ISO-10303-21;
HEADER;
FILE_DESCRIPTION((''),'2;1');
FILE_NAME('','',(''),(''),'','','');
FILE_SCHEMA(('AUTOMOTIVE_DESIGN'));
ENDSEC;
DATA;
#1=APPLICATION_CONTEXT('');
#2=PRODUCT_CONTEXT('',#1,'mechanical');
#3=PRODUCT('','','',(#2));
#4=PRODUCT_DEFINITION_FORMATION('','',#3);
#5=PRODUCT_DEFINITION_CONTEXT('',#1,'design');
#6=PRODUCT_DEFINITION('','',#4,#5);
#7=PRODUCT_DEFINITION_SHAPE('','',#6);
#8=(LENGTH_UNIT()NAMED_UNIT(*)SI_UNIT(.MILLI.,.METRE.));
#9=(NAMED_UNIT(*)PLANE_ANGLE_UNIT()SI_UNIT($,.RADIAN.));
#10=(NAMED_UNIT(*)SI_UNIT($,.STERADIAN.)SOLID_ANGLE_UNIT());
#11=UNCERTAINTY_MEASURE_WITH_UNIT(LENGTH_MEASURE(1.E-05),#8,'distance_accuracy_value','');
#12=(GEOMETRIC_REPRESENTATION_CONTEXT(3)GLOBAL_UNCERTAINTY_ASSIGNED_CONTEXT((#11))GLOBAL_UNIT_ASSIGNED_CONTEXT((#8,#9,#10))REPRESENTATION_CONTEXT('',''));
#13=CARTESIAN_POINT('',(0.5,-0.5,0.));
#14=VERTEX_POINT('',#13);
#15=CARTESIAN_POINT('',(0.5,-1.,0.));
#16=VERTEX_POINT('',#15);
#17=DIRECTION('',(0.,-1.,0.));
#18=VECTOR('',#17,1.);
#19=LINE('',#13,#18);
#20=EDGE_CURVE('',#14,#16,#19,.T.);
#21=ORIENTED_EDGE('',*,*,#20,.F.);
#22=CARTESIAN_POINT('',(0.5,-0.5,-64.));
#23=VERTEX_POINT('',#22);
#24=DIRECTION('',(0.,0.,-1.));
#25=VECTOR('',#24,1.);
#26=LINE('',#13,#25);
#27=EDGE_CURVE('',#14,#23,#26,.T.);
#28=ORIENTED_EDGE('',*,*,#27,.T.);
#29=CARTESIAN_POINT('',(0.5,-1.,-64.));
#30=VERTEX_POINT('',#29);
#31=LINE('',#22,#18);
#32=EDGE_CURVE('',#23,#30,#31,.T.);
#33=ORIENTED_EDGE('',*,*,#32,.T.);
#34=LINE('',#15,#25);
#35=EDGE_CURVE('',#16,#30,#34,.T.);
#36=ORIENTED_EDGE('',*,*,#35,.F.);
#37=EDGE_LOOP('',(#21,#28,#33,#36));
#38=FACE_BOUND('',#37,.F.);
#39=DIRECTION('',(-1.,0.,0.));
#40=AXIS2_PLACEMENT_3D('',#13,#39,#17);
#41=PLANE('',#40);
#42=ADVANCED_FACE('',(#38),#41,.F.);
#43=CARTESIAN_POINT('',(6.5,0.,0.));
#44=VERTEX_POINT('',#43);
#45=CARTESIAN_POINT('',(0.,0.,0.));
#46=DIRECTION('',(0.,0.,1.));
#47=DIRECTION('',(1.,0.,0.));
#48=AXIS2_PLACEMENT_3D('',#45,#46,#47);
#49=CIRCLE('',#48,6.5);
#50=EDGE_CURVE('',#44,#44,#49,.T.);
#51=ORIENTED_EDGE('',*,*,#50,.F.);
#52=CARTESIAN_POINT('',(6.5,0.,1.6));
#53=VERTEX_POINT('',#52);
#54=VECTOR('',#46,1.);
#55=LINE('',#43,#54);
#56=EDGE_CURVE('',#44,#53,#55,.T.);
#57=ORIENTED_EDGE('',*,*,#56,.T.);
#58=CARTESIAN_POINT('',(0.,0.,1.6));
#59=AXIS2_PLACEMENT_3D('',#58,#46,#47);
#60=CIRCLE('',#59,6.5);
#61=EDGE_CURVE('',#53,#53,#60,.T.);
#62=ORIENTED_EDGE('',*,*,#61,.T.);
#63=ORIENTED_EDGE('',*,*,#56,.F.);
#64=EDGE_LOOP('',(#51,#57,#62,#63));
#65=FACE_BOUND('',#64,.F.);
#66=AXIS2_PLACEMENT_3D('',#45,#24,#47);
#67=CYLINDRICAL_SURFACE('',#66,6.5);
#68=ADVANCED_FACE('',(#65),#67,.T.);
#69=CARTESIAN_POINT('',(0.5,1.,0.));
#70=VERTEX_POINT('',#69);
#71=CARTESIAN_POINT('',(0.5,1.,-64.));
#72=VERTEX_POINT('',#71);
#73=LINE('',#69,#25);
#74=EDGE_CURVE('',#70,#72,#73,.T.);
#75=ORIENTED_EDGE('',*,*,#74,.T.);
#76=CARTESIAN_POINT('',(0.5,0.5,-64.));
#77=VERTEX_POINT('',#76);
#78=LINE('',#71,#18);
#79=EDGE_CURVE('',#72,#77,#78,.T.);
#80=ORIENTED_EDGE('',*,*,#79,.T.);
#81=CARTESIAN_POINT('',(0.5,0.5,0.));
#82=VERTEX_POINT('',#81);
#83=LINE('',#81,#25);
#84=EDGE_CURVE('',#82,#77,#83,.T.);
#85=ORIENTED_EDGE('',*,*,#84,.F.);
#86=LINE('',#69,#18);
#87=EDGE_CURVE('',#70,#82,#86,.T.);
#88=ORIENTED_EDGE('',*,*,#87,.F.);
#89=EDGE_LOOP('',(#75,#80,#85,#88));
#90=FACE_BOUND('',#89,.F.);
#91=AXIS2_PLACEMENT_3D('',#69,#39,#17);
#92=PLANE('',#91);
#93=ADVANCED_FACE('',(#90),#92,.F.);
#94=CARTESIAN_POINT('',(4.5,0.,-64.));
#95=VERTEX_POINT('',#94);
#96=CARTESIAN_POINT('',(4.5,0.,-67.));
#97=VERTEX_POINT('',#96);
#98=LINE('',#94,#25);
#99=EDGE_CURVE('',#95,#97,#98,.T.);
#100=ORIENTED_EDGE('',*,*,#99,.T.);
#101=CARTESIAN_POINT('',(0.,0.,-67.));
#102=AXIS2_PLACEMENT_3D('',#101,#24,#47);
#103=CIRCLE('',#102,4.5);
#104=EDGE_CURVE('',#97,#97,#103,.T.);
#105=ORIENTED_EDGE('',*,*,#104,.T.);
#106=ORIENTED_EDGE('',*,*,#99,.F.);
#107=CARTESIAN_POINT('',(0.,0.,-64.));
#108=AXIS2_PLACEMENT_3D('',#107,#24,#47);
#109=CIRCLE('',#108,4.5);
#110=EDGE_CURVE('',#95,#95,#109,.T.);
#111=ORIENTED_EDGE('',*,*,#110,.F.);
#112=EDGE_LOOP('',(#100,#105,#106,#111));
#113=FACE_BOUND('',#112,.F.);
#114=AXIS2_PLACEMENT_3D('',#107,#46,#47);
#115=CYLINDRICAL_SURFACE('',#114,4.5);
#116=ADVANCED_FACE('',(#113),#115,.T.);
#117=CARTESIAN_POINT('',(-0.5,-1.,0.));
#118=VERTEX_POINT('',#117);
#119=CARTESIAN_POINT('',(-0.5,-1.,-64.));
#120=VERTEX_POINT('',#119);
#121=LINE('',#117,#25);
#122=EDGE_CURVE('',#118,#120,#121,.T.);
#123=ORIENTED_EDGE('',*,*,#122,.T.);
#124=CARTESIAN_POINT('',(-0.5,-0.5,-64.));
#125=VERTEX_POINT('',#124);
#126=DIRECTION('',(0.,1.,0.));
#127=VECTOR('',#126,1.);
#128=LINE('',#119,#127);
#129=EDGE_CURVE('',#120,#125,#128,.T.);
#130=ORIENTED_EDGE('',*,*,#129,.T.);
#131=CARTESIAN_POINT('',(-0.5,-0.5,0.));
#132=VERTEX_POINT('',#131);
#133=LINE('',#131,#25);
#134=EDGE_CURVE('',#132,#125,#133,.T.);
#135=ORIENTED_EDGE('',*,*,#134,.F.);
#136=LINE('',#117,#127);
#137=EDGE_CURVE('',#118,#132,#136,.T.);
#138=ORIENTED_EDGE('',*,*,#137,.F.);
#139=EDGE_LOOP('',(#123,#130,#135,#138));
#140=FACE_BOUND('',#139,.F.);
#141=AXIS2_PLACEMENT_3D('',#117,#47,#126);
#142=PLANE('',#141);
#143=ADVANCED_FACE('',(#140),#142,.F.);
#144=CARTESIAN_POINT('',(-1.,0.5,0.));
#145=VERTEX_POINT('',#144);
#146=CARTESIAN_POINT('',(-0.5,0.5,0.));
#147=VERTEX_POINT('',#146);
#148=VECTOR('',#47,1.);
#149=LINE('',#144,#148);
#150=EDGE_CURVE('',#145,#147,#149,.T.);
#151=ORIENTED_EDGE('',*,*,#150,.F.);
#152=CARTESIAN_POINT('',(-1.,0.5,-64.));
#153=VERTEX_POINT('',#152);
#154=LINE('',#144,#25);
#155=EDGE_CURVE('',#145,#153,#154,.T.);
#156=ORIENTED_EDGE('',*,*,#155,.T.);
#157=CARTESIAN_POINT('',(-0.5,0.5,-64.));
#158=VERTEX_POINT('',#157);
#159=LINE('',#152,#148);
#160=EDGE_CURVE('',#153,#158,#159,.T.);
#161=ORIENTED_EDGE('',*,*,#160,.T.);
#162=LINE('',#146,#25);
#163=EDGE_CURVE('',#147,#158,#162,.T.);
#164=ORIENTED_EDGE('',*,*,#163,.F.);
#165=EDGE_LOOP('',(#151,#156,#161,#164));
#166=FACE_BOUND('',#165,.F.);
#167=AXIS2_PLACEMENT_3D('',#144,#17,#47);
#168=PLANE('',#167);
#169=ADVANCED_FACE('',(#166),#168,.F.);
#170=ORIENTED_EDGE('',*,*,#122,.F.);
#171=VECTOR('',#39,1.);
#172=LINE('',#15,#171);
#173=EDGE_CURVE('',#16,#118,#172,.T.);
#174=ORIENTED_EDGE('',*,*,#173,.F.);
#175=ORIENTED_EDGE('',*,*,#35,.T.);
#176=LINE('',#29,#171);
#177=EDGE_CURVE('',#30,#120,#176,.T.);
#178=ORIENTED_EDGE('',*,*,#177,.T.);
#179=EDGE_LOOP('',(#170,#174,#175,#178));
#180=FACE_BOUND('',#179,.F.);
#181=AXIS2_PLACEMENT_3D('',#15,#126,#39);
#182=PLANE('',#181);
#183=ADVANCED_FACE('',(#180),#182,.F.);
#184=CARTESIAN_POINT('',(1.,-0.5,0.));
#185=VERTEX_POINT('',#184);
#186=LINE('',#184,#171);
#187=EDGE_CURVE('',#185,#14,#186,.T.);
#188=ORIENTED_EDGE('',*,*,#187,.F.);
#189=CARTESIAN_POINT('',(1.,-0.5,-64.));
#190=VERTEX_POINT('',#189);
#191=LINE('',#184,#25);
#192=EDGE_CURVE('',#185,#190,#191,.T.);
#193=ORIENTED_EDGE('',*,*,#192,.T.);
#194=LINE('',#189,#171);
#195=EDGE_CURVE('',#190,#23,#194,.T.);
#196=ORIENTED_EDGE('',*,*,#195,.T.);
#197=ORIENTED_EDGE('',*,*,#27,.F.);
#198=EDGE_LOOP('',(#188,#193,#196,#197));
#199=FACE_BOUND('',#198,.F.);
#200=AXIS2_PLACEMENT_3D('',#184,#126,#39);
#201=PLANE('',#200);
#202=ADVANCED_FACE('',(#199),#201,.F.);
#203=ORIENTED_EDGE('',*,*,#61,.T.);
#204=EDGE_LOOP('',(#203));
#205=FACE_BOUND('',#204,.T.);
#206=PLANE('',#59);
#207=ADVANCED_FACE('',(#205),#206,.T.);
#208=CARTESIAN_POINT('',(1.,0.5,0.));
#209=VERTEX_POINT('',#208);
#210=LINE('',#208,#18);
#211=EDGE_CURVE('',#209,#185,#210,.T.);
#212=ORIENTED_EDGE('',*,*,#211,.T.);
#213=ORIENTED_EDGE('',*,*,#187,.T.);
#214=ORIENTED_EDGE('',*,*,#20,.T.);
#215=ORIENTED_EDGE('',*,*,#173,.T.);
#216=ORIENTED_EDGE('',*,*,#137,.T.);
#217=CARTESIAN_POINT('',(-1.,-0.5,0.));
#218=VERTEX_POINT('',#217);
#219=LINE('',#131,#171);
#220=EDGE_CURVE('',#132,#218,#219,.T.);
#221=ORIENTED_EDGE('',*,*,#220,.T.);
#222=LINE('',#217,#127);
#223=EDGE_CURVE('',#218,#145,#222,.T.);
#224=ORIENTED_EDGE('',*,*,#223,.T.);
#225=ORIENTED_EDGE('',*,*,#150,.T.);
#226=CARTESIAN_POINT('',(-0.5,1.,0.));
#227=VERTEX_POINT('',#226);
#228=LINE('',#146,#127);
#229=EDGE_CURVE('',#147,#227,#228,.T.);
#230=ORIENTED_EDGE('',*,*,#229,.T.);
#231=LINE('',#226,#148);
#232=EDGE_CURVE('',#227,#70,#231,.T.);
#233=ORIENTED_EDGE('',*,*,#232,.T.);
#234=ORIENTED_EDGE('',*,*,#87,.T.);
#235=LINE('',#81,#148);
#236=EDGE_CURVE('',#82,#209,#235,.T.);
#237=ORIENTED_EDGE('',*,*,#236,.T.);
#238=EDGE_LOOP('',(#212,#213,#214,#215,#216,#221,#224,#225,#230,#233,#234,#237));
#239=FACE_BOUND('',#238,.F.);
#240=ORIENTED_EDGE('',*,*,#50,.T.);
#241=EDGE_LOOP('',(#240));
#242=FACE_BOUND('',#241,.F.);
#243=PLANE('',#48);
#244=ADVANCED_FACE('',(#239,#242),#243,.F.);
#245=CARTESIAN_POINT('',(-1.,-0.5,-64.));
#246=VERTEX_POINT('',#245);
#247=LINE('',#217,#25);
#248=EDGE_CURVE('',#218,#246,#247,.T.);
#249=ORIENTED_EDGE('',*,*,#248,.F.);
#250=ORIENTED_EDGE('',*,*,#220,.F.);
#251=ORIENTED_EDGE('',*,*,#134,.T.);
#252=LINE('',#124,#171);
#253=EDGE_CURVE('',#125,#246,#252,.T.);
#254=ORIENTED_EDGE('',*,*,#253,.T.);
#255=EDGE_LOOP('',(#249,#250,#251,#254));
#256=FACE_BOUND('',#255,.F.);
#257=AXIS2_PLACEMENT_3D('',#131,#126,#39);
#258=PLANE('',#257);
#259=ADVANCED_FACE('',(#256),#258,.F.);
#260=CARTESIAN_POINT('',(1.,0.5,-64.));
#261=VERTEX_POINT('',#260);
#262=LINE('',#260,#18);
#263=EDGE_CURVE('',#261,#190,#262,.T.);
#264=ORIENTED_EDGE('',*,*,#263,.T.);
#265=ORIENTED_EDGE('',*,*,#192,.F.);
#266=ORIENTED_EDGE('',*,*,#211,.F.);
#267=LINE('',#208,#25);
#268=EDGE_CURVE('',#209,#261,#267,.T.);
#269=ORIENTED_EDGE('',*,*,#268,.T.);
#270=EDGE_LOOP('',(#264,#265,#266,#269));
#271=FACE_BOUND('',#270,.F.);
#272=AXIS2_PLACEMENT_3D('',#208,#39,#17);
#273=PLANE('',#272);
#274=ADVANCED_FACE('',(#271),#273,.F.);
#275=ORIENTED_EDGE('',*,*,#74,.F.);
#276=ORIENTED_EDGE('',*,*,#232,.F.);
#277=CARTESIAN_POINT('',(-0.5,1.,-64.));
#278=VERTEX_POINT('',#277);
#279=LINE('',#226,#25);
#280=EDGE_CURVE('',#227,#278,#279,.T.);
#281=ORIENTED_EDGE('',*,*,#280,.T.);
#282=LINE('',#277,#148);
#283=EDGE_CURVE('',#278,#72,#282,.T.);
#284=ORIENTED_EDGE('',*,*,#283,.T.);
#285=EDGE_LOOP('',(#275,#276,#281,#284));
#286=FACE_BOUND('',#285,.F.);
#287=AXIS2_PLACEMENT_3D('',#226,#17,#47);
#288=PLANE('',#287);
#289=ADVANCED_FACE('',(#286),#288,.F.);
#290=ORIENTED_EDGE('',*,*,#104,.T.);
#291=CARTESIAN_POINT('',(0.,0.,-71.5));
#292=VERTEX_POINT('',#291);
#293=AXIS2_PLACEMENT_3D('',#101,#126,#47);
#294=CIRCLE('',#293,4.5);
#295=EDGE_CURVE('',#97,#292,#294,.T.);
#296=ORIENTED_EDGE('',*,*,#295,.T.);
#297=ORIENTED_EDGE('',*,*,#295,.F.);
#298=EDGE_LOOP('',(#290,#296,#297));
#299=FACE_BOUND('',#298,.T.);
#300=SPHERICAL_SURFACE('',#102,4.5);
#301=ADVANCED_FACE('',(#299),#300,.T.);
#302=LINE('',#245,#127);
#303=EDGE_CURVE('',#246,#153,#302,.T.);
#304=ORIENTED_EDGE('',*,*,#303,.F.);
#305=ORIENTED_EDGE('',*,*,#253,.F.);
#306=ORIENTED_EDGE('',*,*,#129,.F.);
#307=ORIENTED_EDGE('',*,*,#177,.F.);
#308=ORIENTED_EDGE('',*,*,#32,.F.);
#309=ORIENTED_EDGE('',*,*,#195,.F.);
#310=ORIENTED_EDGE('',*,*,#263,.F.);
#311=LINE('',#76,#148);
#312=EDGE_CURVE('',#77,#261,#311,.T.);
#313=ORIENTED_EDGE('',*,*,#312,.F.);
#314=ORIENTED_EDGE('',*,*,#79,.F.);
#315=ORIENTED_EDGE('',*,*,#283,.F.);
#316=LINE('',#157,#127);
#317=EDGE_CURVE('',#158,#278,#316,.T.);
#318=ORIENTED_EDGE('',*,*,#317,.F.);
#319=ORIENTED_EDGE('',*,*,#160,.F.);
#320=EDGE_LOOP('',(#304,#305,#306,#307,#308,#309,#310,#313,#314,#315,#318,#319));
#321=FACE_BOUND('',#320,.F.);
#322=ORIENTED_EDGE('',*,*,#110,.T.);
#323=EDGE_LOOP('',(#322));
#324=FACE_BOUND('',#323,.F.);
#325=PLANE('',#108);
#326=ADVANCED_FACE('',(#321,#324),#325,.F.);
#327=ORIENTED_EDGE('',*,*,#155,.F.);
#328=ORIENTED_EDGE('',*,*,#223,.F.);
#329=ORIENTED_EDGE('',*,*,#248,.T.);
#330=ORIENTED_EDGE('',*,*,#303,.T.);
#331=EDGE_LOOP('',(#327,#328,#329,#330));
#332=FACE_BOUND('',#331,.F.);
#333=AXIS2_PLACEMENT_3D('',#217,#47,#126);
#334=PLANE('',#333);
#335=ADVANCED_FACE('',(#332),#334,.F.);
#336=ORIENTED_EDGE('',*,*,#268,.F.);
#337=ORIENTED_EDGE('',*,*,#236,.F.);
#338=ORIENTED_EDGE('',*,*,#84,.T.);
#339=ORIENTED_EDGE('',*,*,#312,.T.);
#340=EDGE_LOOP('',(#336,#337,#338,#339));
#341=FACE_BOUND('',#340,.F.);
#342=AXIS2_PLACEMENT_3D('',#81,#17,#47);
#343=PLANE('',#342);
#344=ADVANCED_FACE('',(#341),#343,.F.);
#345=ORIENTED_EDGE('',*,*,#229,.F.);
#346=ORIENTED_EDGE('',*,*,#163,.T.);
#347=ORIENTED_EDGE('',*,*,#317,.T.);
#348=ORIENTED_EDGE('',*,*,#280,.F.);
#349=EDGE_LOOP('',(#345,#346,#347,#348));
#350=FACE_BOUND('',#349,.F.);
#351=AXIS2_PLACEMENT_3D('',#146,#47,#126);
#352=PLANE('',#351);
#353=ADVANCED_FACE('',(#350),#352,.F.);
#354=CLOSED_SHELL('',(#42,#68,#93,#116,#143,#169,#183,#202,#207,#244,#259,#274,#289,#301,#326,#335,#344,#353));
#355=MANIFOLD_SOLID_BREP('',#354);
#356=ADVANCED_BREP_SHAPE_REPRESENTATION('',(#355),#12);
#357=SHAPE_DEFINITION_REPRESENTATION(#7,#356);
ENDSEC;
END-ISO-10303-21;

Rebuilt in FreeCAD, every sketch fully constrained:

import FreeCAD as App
import Part
import Sketcher
Q = App.Units.Quantity


def edges_at(feature, points):
    """Names of the edges that pass closest to the given points."""
    edges = feature.Shape.Edges
    near = lambda p: min(range(len(edges)), key=lambda i: edges[i].distToShape(Part.Vertex(*p))[0])
    return sorted({f"Edge{near(p) + 1}" for p in points})


def add_polygon(sketch, points):
    """Adds a closed chain of lines whose ends are joined by coincident constraints."""
    first, n = sketch.GeometryCount, len(points)
    for a, b in zip(points, points[1:] + points[:1]):
        sketch.addGeometry(Part.LineSegment(App.Vector(*a, 0), App.Vector(*b, 0)), False)
    for i in range(n):
        sketch.addConstraint(Sketcher.Constraint("Coincident", first + i, 2, first + (i + 1) % n, 1))

doc = App.newDocument("Part")
body = doc.addObject("PartDesign::Body", "Body")

# Sketch on XY plane
sketch1 = doc.addObject("Sketcher::SketchObject", "Sketch")
body.addObject(sketch1)
sketch1.AttachmentSupport = (doc.XY_Plane, [""])
sketch1.MapMode = "FlatFace"
sketch1.addGeometry(Part.Circle(App.Vector(0, 0, 0), App.Vector(0, 0, 1), 6.5), False)
sketch1.addConstraint(Sketcher.Constraint("Coincident", 0, 3, -1, 1))
sketch1.addConstraint(Sketcher.Constraint("Diameter", 0, Q("13 mm")))
pad1 = doc.addObject("PartDesign::Pad", "Pad")
body.addObject(pad1)
pad1.Profile = sketch1
pad1.Length = 1.6

# Sketch on XY plane
sketch2 = doc.addObject("Sketcher::SketchObject", "Sketch001")
body.addObject(sketch2)
sketch2.AttachmentSupport = (doc.XY_Plane, [""])
sketch2.MapMode = "FlatFace"
add_polygon(sketch2, [(0.5, -1), (-0.5, -1), (-0.5, -0.5), (-1, -0.5), (-1, 0.5), (-0.5, 0.5), (-0.5, 1), (0.5, 1), (0.5, 0.5), (1, 0.5), (1, -0.5), (0.5, -0.5)])  # lines 0-11
sketch2.addConstraint(Sketcher.Constraint("Horizontal", 0))
sketch2.addConstraint(Sketcher.Constraint("Vertical", 1))
sketch2.addConstraint(Sketcher.Constraint("Horizontal", 2))
sketch2.addConstraint(Sketcher.Constraint("Vertical", 3))
sketch2.addConstraint(Sketcher.Constraint("Horizontal", 4))
sketch2.addConstraint(Sketcher.Constraint("Vertical", 5))
sketch2.addConstraint(Sketcher.Constraint("Horizontal", 6))
sketch2.addConstraint(Sketcher.Constraint("Vertical", 7))
sketch2.addConstraint(Sketcher.Constraint("Horizontal", 8))
sketch2.addConstraint(Sketcher.Constraint("Vertical", 9))
sketch2.addConstraint(Sketcher.Constraint("Horizontal", 10))
sketch2.addConstraint(Sketcher.Constraint("Vertical", 11))
sketch2.addConstraint(Sketcher.Constraint("Symmetric", 0, 2, 6, 2, -1, 1))
sketch2.addConstraint(Sketcher.Constraint("Symmetric", 2, 2, 8, 2, -1, 1))
sketch2.addConstraint(Sketcher.Constraint("Symmetric", 4, 2, 10, 2, -1, 1))
sketch2.addConstraint(Sketcher.Constraint("Symmetric", 4, 2, 7, 2, -2))
sketch2.addConstraint(Sketcher.Constraint("Equal", 10, 1))
sketch2.addConstraint(Sketcher.Constraint("Equal", 6, 3))
sketch2.addConstraint(Sketcher.Constraint("DistanceX", 0, 2, 0, 1, Q("1 mm")))
sketch2.addConstraint(Sketcher.Constraint("DistanceX", 2, 2, 2, 1, Q("0.5 mm")))
pad2 = doc.addObject("PartDesign::Pad", "Pad001")
body.addObject(pad2)
pad2.Profile = sketch2
pad2.Length = 64
pad2.Reversed = True

# Sketch on XY plane
sketch3 = doc.addObject("Sketcher::SketchObject", "Sketch002")
body.addObject(sketch3)
sketch3.AttachmentSupport = (doc.XY_Plane, [""])
sketch3.MapMode = "FlatFace"
sketch3.AttachmentOffset = App.Placement(App.Vector(0, 0, -64), App.Rotation())
sketch3.addGeometry(Part.Circle(App.Vector(0, 0, 0), App.Vector(0, 0, 1), 4.5), False)
sketch3.addConstraint(Sketcher.Constraint("Coincident", 0, 3, -1, 1))
sketch3.addConstraint(Sketcher.Constraint("Diameter", 0, Q("9 mm")))
pad3 = doc.addObject("PartDesign::Pad", "Pad002")
body.addObject(pad3)
pad3.Profile = sketch3
pad3.Length = 7.5
pad3.Reversed = True
doc.recompute()

fillet = doc.addObject("PartDesign::Fillet", "Fillet")
body.addObject(fillet)
fillet.Base = (pad3, edges_at(pad3, [(-4.5, 0, -71.5)]))
fillet.Radius = 4.5

doc.recompute()
